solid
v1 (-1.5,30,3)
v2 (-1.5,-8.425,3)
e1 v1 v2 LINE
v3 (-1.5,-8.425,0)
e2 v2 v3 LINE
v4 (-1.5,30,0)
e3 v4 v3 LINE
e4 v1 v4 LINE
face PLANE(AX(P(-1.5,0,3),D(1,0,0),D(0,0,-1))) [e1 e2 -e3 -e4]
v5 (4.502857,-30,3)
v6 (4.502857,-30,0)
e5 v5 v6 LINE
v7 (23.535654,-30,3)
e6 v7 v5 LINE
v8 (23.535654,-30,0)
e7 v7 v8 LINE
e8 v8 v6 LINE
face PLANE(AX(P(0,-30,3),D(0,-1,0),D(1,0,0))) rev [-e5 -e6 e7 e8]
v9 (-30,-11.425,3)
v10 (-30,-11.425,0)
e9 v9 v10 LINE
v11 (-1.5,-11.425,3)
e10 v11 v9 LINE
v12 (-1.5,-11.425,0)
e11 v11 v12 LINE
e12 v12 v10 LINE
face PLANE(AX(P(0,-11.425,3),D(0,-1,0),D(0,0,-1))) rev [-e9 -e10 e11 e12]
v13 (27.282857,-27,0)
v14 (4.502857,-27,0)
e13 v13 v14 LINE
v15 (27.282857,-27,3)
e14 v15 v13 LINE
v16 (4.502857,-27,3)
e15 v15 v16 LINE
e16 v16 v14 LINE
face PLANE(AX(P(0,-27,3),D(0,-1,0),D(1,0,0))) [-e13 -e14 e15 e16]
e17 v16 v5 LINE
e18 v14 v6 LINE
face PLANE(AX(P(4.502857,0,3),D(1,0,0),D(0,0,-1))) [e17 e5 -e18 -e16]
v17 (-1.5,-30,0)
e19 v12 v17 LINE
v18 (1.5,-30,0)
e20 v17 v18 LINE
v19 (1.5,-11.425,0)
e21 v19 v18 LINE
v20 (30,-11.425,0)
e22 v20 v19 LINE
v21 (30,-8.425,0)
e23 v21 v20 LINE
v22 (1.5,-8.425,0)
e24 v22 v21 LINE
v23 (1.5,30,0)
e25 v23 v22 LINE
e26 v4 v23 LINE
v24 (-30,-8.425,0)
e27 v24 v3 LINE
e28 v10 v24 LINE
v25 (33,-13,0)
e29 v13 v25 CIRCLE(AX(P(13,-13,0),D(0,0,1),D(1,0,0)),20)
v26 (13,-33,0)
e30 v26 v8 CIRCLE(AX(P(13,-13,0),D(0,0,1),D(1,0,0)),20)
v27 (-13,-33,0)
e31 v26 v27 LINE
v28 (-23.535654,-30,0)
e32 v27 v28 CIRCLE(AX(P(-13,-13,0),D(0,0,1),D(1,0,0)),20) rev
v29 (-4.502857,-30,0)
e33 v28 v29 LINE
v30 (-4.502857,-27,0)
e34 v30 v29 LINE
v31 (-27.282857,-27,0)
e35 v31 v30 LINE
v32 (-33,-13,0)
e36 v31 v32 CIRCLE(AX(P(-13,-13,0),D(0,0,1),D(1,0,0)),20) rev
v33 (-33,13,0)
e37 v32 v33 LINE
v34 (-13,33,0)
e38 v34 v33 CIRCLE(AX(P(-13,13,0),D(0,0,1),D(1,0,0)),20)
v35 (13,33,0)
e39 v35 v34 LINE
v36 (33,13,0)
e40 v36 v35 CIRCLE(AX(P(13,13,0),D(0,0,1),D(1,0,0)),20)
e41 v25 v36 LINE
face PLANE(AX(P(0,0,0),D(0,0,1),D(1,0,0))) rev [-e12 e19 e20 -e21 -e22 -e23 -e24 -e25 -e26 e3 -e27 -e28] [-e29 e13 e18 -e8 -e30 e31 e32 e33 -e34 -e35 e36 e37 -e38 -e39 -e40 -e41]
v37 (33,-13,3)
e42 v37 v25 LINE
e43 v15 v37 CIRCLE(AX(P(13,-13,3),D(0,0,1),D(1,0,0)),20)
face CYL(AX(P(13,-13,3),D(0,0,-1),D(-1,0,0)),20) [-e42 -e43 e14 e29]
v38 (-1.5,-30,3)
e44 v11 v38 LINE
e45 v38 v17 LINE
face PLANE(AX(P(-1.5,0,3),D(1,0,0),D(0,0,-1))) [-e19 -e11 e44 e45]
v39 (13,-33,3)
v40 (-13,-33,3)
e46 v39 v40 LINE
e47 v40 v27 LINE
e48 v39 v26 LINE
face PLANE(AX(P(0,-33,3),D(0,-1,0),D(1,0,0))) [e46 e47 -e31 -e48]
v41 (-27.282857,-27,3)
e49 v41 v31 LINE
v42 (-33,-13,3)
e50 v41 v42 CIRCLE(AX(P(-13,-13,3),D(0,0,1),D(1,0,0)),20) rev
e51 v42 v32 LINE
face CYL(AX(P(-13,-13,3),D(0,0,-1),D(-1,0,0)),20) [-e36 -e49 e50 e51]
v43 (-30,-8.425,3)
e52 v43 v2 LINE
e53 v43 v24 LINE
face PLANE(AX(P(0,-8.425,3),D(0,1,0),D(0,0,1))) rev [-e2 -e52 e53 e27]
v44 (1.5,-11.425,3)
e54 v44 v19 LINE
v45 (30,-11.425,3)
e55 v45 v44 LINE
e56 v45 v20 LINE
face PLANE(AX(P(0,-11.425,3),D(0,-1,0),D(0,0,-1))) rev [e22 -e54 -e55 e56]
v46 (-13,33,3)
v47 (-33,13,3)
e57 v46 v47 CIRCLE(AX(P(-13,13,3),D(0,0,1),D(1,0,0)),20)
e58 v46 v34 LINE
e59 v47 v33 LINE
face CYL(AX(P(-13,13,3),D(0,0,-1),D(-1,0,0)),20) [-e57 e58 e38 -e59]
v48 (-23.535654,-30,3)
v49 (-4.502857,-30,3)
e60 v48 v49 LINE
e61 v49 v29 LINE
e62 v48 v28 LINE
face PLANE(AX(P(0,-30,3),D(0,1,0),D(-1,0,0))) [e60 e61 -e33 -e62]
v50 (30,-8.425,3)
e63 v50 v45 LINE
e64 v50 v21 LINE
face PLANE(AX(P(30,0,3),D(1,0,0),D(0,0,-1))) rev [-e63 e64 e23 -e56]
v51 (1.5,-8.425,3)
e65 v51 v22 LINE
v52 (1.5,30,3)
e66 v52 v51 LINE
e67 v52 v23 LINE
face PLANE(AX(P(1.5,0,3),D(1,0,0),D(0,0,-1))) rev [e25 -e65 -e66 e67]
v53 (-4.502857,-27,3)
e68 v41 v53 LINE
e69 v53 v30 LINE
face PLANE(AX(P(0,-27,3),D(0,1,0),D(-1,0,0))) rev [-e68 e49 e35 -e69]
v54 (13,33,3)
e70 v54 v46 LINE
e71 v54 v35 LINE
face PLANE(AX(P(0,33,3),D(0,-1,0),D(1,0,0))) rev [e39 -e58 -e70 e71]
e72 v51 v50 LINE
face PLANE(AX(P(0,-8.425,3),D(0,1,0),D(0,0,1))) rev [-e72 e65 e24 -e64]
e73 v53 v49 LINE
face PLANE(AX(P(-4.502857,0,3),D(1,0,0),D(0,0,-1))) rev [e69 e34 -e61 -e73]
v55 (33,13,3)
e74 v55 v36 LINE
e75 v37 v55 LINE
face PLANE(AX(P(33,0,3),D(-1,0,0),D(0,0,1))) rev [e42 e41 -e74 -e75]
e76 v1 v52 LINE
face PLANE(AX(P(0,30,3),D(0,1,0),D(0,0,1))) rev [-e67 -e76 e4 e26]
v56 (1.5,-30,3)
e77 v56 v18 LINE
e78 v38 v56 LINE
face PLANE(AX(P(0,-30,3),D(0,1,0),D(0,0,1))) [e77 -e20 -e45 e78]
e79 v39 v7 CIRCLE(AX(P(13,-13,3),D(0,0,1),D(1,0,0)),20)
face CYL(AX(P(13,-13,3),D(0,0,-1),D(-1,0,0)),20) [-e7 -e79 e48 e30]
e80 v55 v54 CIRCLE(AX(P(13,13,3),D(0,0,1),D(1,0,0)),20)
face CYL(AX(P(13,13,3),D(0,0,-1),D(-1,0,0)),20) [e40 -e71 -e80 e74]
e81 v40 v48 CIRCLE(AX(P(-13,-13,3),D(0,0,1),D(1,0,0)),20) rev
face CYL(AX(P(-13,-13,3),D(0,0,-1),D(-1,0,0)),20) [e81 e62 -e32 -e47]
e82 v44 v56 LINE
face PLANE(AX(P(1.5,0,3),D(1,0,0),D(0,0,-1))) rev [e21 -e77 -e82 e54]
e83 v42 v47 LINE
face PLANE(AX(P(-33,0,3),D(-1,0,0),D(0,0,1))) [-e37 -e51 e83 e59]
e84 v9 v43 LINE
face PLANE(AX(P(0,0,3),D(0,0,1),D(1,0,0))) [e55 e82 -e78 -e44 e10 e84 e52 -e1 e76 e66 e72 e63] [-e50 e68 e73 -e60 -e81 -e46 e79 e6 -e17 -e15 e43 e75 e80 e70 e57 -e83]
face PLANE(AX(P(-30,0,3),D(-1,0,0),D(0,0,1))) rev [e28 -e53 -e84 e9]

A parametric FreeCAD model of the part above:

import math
import FreeCAD as App
import Part
import Sketcher

doc = App.newDocument("Part")
body = doc.addObject("PartDesign::Body", "Body")

# Sketch on XY plane
sketch1 = body.newObject("Sketcher::SketchObject", "Sketch")
sketch1.AttachmentSupport = (doc.getObject("XY_Plane"), [""])
sketch1.MapMode = "FlatFace"
sketch1.addGeometry(Part.LineSegment(App.Vector(-13, -33, 0), App.Vector(13, -33, 0)), False)
sketch1.addGeometry(Part.ArcOfCircle(Part.Circle(App.Vector(13, -13, 0), App.Vector(0, 0, 1), 20), math.radians(-90), math.radians(-58.211669)), False)
sketch1.addGeometry(Part.LineSegment(App.Vector(23.535654, -30, 0), App.Vector(4.502857, -30, 0)), False)
sketch1.addGeometry(Part.LineSegment(App.Vector(4.502857, -30, 0), App.Vector(4.502857, -27, 0)), False)
sketch1.addGeometry(Part.LineSegment(App.Vector(4.502857, -27, 0), App.Vector(27.282857, -27, 0)), False)
sketch1.addGeometry(Part.ArcOfCircle(Part.Circle(App.Vector(13, -13, 0), App.Vector(0, 0, 1), 20), math.radians(-44.427004), math.radians(0)), False)
sketch1.addGeometry(Part.LineSegment(App.Vector(33, -13, 0), App.Vector(33, 13, 0)), False)
sketch1.addGeometry(Part.ArcOfCircle(Part.Circle(App.Vector(13, 13, 0), App.Vector(0, 0, 1), 20), math.radians(0), math.radians(90)), False)
sketch1.addGeometry(Part.LineSegment(App.Vector(13, 33, 0), App.Vector(-13, 33, 0)), False)
sketch1.addGeometry(Part.ArcOfCircle(Part.Circle(App.Vector(-13, 13, 0), App.Vector(0, 0, 1), 20), math.radians(90), math.radians(180)), False)
sketch1.addGeometry(Part.LineSegment(App.Vector(-33, 13, 0), App.Vector(-33, -13, 0)), False)
sketch1.addGeometry(Part.ArcOfCircle(Part.Circle(App.Vector(-13, -13, 0), App.Vector(0, 0, 1), 20), math.radians(-180), math.radians(-135.572996)), False)
sketch1.addGeometry(Part.LineSegment(App.Vector(-27.282857, -27, 0), App.Vector(-4.502857, -27, 0)), False)
sketch1.addGeometry(Part.LineSegment(App.Vector(-4.502857, -27, 0), App.Vector(-4.502857, -30, 0)), False)
sketch1.addGeometry(Part.LineSegment(App.Vector(-4.502857, -30, 0), App.Vector(-23.535654, -30, 0)), False)
sketch1.addGeometry(Part.ArcOfCircle(Part.Circle(App.Vector(-13, -13, 0), App.Vector(0, 0, 1), 20), math.radians(-121.788331), math.radians(-90)), False)
sketch1.addGeometry(Part.LineSegment(App.Vector(-1.5, -11.425, 0), App.Vector(-30, -11.425, 0)), False)
sketch1.addGeometry(Part.LineSegment(App.Vector(-30, -11.425, 0), App.Vector(-30, -8.425, 0)), False)
sketch1.addGeometry(Part.LineSegment(App.Vector(-30, -8.425, 0), App.Vector(-1.5, -8.425, 0)), False)
sketch1.addGeometry(Part.LineSegment(App.Vector(-1.5, -8.425, 0), App.Vector(-1.5, 30, 0)), False)
sketch1.addGeometry(Part.LineSegment(App.Vector(-1.5, 30, 0), App.Vector(1.5, 30, 0)), False)
sketch1.addGeometry(Part.LineSegment(App.Vector(1.5, 30, 0), App.Vector(1.5, -8.425, 0)), False)
sketch1.addGeometry(Part.LineSegment(App.Vector(1.5, -8.425, 0), App.Vector(30, -8.425, 0)), False)
sketch1.addGeometry(Part.LineSegment(App.Vector(30, -8.425, 0), App.Vector(30, -11.425, 0)), False)
sketch1.addGeometry(Part.LineSegment(App.Vector(30, -11.425, 0), App.Vector(1.5, -11.425, 0)), False)
sketch1.addGeometry(Part.LineSegment(App.Vector(1.5, -11.425, 0), App.Vector(1.5, -30, 0)), False)
sketch1.addGeometry(Part.LineSegment(App.Vector(1.5, -30, 0), App.Vector(-1.5, -30, 0)), False)
sketch1.addGeometry(Part.LineSegment(App.Vector(-1.5, -30, 0), App.Vector(-1.5, -11.425, 0)), False)
sketch1.addConstraint(Sketcher.Constraint("Tangent", 0, 2, 1, 1))
sketch1.addConstraint(Sketcher.Constraint("Coincident", 1, 2, 2, 1))
sketch1.addConstraint(Sketcher.Constraint("Coincident", 2, 2, 3, 1))
sketch1.addConstraint(Sketcher.Constraint("Coincident", 3, 2, 4, 1))
sketch1.addConstraint(Sketcher.Constraint("Coincident", 4, 2, 5, 1))
sketch1.addConstraint(Sketcher.Constraint("Tangent", 5, 2, 6, 1))
sketch1.addConstraint(Sketcher.Constraint("Tangent", 6, 2, 7, 1))
sketch1.addConstraint(Sketcher.Constraint("Tangent", 7, 2, 8, 1))
sketch1.addConstraint(Sketcher.Constraint("Tangent", 8, 2, 9, 1))
sketch1.addConstraint(Sketcher.Constraint("Tangent", 9, 2, 10, 1))
sketch1.addConstraint(Sketcher.Constraint("Tangent", 10, 2, 11, 1))
sketch1.addConstraint(Sketcher.Constraint("Coincident", 11, 2, 12, 1))
sketch1.addConstraint(Sketcher.Constraint("Coincident", 12, 2, 13, 1))
sketch1.addConstraint(Sketcher.Constraint("Coincident", 13, 2, 14, 1))
sketch1.addConstraint(Sketcher.Constraint("Coincident", 14, 2, 15, 1))
sketch1.addConstraint(Sketcher.Constraint("Tangent", 15, 2, 0, 1))
sketch1.addConstraint(Sketcher.Constraint("Coincident", 16, 2, 17, 1))
sketch1.addConstraint(Sketcher.Constraint("Coincident", 17, 2, 18, 1))
sketch1.addConstraint(Sketcher.Constraint("Coincident", 18, 2, 19, 1))
sketch1.addConstraint(Sketcher.Constraint("Coincident", 19, 2, 20, 1))
sketch1.addConstraint(Sketcher.Constraint("Coincident", 20, 2, 21, 1))
sketch1.addConstraint(Sketcher.Constraint("Coincident", 21, 2, 22, 1))
sketch1.addConstraint(Sketcher.Constraint("Coincident", 22, 2, 23, 1))
sketch1.addConstraint(Sketcher.Constraint("Coincident", 23, 2, 24, 1))
sketch1.addConstraint(Sketcher.Constraint("Coincident", 24, 2, 25, 1))
sketch1.addConstraint(Sketcher.Constraint("Coincident", 25, 2, 26, 1))
sketch1.addConstraint(Sketcher.Constraint("Coincident", 26, 2, 27, 1))
sketch1.addConstraint(Sketcher.Constraint("Coincident", 27, 2, 16, 1))
sketch1.addConstraint(Sketcher.Constraint("Horizontal", 0))
sketch1.addConstraint(Sketcher.Constraint("Horizontal", 2))
sketch1.addConstraint(Sketcher.Constraint("Vertical", 3))
sketch1.addConstraint(Sketcher.Constraint("Horizontal", 4))
sketch1.addConstraint(Sketcher.Constraint("Vertical", 6))
sketch1.addConstraint(Sketcher.Constraint("Horizontal", 8))
sketch1.addConstraint(Sketcher.Constraint("Vertical", 10))
sketch1.addConstraint(Sketcher.Constraint("Horizontal", 12))
sketch1.addConstraint(Sketcher.Constraint("Vertical", 13))
sketch1.addConstraint(Sketcher.Constraint("Horizontal", 14))
sketch1.addConstraint(Sketcher.Constraint("Horizontal", 16))
sketch1.addConstraint(Sketcher.Constraint("Vertical", 17))
sketch1.addConstraint(Sketcher.Constraint("Horizontal", 18))
sketch1.addConstraint(Sketcher.Constraint("Vertical", 19))
sketch1.addConstraint(Sketcher.Constraint("Horizontal", 20))
sketch1.addConstraint(Sketcher.Constraint("Vertical", 21))
sketch1.addConstraint(Sketcher.Constraint("Horizontal", 22))
sketch1.addConstraint(Sketcher.Constraint("Vertical", 23))
sketch1.addConstraint(Sketcher.Constraint("Horizontal", 24))
sketch1.addConstraint(Sketcher.Constraint("Vertical", 25))
sketch1.addConstraint(Sketcher.Constraint("Horizontal", 26))
sketch1.addConstraint(Sketcher.Constraint("Vertical", 27))
sketch1.addConstraint(Sketcher.Constraint("Coincident", 5, 3, 1, 3))
sketch1.addConstraint(Sketcher.Constraint("Coincident", 15, 3, 11, 3))
sketch1.addConstraint(Sketcher.Constraint("Equal", 1, 5))
sketch1.addConstraint(Sketcher.Constraint("Equal", 5, 7))
sketch1.addConstraint(Sketcher.Constraint("Equal", 7, 9))
sketch1.addConstraint(Sketcher.Constraint("Equal", 9, 11))
sketch1.addConstraint(Sketcher.Constraint("Equal", 11, 15))
sketch1.addConstraint(Sketcher.Constraint("Symmetric", 1, 3, 9, 3, -1, 1))
sketch1.addConstraint(Sketcher.Constraint("Symmetric", 19, 2, 25, 2, -1, 1))
sketch1.addConstraint(Sketcher.Constraint("Symmetric", 3, 2, 12, 2, -2))
sketch1.addConstraint(Sketcher.Constraint("Symmetric", 18, 2, 21, 2, -2))
sketch1.addConstraint(Sketcher.Constraint("Symmetric", 16, 2, 23, 2, -2))
sketch1.addConstraint(Sketcher.Constraint("Horizontal", 2, 2, 13, 2))
sketch1.addConstraint(Sketcher.Constraint("Horizontal", 14, 2, 25, 2))
sketch1.addConstraint(Sketcher.Constraint("Vertical", 19, 2, 26, 2))
sketch1.addConstraint(Sketcher.Constraint("Equal", 26, 3))
sketch1.addConstraint(Sketcher.Constraint("Equal", 8, 6))
sketch1.addConstraint(Sketcher.Constraint("Equal", 13, 17))
sketch1.addConstraint(Sketcher.Constraint("Radius", 1, 20.0))
sketch1.addConstraint(Sketcher.Constraint("DistanceX", 0, 1, 0, 2, 26.0))
sketch1.addConstraint(Sketcher.Constraint("DistanceX", 20, 1, 20, 2, 3.0))
sketch1.addConstraint(Sketcher.Constraint("DistanceX", 16, 2, 16, 1, 28.5))
sketch1.addConstraint(Sketcher.Constraint("DistanceY", 1, 2, -1, 1, 30.0))
sketch1.addConstraint(Sketcher.Constraint("DistanceX", 4, 1, 4, 2, 22.78))
sketch1.addConstraint(Sketcher.Constraint("DistanceY", 19, 1, 19, 2, 38.425))
pad1 = body.newObject("PartDesign::Pad", "Pad")
pad1.Profile = sketch1
pad1.Length = 3

doc.recompute()
